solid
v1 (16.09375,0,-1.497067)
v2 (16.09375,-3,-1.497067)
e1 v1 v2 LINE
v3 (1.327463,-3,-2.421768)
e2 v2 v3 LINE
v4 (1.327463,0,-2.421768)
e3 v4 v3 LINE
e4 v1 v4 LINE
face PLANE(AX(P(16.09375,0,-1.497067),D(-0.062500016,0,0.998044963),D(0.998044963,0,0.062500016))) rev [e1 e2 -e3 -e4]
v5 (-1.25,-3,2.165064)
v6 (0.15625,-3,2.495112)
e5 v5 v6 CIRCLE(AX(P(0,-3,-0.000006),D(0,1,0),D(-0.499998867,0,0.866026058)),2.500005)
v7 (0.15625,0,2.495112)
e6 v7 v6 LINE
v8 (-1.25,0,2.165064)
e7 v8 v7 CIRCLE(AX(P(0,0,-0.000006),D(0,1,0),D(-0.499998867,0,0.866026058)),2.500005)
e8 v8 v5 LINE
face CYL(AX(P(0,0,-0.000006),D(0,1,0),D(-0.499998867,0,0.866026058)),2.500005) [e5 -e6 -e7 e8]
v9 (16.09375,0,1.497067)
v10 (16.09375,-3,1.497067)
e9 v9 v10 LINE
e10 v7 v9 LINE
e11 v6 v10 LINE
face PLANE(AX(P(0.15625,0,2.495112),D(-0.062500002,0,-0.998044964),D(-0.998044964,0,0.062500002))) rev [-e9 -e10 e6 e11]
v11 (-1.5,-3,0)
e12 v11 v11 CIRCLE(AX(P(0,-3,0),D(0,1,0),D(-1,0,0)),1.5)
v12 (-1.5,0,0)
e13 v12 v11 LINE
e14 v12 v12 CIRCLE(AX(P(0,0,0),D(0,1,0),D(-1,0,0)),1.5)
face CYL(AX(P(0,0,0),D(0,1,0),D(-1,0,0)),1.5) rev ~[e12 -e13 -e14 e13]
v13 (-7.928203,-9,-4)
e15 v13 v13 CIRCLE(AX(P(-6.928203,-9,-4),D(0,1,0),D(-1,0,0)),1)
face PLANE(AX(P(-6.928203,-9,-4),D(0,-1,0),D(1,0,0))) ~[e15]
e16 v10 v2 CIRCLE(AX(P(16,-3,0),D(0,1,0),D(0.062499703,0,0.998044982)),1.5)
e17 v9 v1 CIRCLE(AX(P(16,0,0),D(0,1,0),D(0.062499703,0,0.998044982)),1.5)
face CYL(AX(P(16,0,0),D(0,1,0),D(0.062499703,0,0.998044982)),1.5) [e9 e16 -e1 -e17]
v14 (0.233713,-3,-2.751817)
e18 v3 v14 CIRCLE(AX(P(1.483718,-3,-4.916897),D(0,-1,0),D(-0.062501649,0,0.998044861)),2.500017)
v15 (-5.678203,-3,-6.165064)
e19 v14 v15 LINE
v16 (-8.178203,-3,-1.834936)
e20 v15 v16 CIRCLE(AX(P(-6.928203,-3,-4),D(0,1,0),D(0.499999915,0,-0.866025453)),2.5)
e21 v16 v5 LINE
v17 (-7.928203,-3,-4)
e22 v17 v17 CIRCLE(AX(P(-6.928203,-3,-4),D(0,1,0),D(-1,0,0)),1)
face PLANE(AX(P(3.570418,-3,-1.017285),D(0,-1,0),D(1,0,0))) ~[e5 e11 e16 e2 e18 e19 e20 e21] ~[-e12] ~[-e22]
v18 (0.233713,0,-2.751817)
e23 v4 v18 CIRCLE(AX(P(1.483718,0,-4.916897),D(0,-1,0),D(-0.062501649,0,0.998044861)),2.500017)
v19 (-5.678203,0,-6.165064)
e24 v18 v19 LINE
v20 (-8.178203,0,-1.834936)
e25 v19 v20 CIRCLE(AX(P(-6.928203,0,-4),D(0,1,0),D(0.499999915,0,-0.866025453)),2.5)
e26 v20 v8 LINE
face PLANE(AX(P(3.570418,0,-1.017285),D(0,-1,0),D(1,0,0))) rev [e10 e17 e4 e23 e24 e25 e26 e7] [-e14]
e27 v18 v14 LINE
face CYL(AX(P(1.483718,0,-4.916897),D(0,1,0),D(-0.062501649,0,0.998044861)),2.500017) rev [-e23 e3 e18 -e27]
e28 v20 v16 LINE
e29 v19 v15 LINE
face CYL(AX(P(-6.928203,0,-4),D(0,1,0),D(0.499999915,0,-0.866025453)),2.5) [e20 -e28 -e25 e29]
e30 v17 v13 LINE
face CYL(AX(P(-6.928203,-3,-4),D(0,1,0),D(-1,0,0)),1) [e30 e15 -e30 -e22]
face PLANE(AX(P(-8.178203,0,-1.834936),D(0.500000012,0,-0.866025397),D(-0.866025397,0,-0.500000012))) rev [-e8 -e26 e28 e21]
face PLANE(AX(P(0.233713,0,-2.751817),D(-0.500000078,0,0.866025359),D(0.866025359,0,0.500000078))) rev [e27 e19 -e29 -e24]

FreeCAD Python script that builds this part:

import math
import FreeCAD as App
import Part
import Sketcher
from FreeCAD import Vector
Q = App.Units.Quantity

doc = App.newDocument("Part")
params = doc.addObject("Spreadsheet::Sheet", "Params")
for row, (alias, value) in enumerate([
    ("sketch1_diameter", "3 mm"),
    ("sketch1_radius", "2.5 mm"),
    ("sketch1_length", "8 mm"),
    ("pad1_length", "3 mm"),
    ("sketch2_diameter", "2 mm"),
    ("pad2_length", "6 mm"),
], start=1):
    params.set(f"A{row}", alias)
    params.set(f"B{row}", "=" + value)
    params.setAlias(f"B{row}", alias)

body = doc.addObject("PartDesign::Body", "Body")

# Sketch on XZ plane
sketch1 = body.newObject("Sketcher::SketchObject", "Sketch")
sketch1.AttachmentSupport = (doc.getObject("XZ_Plane"), [""])
sketch1.MapMode = "FlatFace"
sketch1.addGeometry([
    Part.LineSegment(Vector(8.2, -1.8, 0), Vector(1.2, 2.2, 0)),  # 0
    Part.ArcOfCircle(Part.Circle(Vector(0, 0, 0), Vector(0, 0, 1), 2.5), math.radians(60), math.radians(94)),  # 1
    Part.LineSegment(Vector(-0.2, 2.5, 0), Vector(-16.1, 1.5, 0)),  # 2
    Part.ArcOfCircle(Part.Circle(Vector(-16, 0, 0), Vector(0, 0, 1), 1.5), math.radians(94), math.radians(266)),  # 3
    Part.LineSegment(Vector(-16.1, -1.5, 0), Vector(-1.3, -2.4, 0)),  # 4
    Part.ArcOfCircle(Part.Circle(Vector(-1.5, -4.9, 0), Vector(0, 0, 1), 2.5), math.radians(60), math.radians(86)),  # 5
    Part.LineSegment(Vector(-0.2, -2.8, 0), Vector(5.7, -6.2, 0)),  # 6
    Part.ArcOfCircle(Part.Circle(Vector(6.9, -4, 0), Vector(0, 0, 1), 2.5), math.radians(-120), math.radians(60)),  # 7
    Part.Circle(Vector(0, 0, 0), Vector(0, 0, 1), 1.5),  # 8
], False)
sketch1.addConstraint([
    Sketcher.Constraint("Tangent", 0, 2, 1, 1),
    Sketcher.Constraint("Tangent", 1, 2, 2, 1),
    Sketcher.Constraint("Tangent", 2, 2, 3, 1),
    Sketcher.Constraint("Tangent", 3, 2, 4, 1),
    Sketcher.Constraint("Tangent", 4, 2, 5, 2),
    Sketcher.Constraint("Tangent", 5, 1, 6, 1),
    Sketcher.Constraint("Tangent", 6, 2, 7, 1),
    Sketcher.Constraint("Tangent", 7, 2, 0, 1),
    Sketcher.Constraint("Coincident", 1, 3, -1, 1),
    Sketcher.Constraint("Coincident", 8, 3, -1, 1),
    Sketcher.Constraint("Equal", 3, 8),
    Sketcher.Constraint("Symmetric", 2, 2, 3, 2, -1),
    Sketcher.Constraint("Parallel", 0, 6),
    Sketcher.Constraint("Diameter", 8, 3.0),
    Sketcher.Constraint("Radius", 7, 2.5),
    Sketcher.Constraint("Angle", 0, Q("149.999999 deg")),
    Sketcher.Constraint("Distance", 0, 8.0),
    Sketcher.Constraint("DistanceX", 3, 3, -1, 1, 16.0),
    Sketcher.Constraint("DistanceY", 7, 3, -1, 1, 4.0),
    Sketcher.Constraint("Radius", 5, 2.500017),
])
sketch1.setExpression("Constraints[13]", "Params.sketch1_diameter")
sketch1.setExpression("Constraints[14]", "Params.sketch1_radius")
sketch1.setExpression("Constraints[16]", "Params.sketch1_length")
pad1 = body.newObject("PartDesign::Pad", "Pad")
pad1.Profile = sketch1
pad1.setExpression("Length", "Params.pad1_length")

# Sketch on XZ plane
sketch2 = body.newObject("Sketcher::SketchObject", "Sketch001")
sketch2.AttachmentSupport = (doc.getObject("XZ_Plane"), [""])
sketch2.MapMode = "FlatFace"
sketch2.AttachmentOffset = App.Placement(Vector(0, 0, 3), App.Rotation())
sketch2.addGeometry(Part.Circle(Vector(6.9, -4, 0), Vector(0, 0, 1), 1), False)
sketch2.addConstraint([
    Sketcher.Constraint("Diameter", 0, 2.0),
    Sketcher.Constraint("DistanceY", 0, 3, -1, 1, 4.0),
    Sketcher.Constraint("DistanceX", -1, 1, 0, 3, 6.928203),
])
sketch2.setExpression("Constraints[0]", "Params.sketch2_diameter")
pad2 = body.newObject("PartDesign::Pad", "Pad001")
pad2.Profile = sketch2
pad2.setExpression("Length", "Params.pad2_length")
body2 = doc.addObject("PartDesign::Body", "Body001")
doc.recompute()

mirroring = doc.addObject("Part::Mirroring", "Mirroring")
mirroring.Source = body
mirroring.Base = Vector(0, 0, 0)
mirroring.Normal = Vector(1, 0, 0)
body2.BaseFeature = mirroring
doc.recompute()
body.Visibility = False
mirroring.Visibility = False

doc.recompute()
